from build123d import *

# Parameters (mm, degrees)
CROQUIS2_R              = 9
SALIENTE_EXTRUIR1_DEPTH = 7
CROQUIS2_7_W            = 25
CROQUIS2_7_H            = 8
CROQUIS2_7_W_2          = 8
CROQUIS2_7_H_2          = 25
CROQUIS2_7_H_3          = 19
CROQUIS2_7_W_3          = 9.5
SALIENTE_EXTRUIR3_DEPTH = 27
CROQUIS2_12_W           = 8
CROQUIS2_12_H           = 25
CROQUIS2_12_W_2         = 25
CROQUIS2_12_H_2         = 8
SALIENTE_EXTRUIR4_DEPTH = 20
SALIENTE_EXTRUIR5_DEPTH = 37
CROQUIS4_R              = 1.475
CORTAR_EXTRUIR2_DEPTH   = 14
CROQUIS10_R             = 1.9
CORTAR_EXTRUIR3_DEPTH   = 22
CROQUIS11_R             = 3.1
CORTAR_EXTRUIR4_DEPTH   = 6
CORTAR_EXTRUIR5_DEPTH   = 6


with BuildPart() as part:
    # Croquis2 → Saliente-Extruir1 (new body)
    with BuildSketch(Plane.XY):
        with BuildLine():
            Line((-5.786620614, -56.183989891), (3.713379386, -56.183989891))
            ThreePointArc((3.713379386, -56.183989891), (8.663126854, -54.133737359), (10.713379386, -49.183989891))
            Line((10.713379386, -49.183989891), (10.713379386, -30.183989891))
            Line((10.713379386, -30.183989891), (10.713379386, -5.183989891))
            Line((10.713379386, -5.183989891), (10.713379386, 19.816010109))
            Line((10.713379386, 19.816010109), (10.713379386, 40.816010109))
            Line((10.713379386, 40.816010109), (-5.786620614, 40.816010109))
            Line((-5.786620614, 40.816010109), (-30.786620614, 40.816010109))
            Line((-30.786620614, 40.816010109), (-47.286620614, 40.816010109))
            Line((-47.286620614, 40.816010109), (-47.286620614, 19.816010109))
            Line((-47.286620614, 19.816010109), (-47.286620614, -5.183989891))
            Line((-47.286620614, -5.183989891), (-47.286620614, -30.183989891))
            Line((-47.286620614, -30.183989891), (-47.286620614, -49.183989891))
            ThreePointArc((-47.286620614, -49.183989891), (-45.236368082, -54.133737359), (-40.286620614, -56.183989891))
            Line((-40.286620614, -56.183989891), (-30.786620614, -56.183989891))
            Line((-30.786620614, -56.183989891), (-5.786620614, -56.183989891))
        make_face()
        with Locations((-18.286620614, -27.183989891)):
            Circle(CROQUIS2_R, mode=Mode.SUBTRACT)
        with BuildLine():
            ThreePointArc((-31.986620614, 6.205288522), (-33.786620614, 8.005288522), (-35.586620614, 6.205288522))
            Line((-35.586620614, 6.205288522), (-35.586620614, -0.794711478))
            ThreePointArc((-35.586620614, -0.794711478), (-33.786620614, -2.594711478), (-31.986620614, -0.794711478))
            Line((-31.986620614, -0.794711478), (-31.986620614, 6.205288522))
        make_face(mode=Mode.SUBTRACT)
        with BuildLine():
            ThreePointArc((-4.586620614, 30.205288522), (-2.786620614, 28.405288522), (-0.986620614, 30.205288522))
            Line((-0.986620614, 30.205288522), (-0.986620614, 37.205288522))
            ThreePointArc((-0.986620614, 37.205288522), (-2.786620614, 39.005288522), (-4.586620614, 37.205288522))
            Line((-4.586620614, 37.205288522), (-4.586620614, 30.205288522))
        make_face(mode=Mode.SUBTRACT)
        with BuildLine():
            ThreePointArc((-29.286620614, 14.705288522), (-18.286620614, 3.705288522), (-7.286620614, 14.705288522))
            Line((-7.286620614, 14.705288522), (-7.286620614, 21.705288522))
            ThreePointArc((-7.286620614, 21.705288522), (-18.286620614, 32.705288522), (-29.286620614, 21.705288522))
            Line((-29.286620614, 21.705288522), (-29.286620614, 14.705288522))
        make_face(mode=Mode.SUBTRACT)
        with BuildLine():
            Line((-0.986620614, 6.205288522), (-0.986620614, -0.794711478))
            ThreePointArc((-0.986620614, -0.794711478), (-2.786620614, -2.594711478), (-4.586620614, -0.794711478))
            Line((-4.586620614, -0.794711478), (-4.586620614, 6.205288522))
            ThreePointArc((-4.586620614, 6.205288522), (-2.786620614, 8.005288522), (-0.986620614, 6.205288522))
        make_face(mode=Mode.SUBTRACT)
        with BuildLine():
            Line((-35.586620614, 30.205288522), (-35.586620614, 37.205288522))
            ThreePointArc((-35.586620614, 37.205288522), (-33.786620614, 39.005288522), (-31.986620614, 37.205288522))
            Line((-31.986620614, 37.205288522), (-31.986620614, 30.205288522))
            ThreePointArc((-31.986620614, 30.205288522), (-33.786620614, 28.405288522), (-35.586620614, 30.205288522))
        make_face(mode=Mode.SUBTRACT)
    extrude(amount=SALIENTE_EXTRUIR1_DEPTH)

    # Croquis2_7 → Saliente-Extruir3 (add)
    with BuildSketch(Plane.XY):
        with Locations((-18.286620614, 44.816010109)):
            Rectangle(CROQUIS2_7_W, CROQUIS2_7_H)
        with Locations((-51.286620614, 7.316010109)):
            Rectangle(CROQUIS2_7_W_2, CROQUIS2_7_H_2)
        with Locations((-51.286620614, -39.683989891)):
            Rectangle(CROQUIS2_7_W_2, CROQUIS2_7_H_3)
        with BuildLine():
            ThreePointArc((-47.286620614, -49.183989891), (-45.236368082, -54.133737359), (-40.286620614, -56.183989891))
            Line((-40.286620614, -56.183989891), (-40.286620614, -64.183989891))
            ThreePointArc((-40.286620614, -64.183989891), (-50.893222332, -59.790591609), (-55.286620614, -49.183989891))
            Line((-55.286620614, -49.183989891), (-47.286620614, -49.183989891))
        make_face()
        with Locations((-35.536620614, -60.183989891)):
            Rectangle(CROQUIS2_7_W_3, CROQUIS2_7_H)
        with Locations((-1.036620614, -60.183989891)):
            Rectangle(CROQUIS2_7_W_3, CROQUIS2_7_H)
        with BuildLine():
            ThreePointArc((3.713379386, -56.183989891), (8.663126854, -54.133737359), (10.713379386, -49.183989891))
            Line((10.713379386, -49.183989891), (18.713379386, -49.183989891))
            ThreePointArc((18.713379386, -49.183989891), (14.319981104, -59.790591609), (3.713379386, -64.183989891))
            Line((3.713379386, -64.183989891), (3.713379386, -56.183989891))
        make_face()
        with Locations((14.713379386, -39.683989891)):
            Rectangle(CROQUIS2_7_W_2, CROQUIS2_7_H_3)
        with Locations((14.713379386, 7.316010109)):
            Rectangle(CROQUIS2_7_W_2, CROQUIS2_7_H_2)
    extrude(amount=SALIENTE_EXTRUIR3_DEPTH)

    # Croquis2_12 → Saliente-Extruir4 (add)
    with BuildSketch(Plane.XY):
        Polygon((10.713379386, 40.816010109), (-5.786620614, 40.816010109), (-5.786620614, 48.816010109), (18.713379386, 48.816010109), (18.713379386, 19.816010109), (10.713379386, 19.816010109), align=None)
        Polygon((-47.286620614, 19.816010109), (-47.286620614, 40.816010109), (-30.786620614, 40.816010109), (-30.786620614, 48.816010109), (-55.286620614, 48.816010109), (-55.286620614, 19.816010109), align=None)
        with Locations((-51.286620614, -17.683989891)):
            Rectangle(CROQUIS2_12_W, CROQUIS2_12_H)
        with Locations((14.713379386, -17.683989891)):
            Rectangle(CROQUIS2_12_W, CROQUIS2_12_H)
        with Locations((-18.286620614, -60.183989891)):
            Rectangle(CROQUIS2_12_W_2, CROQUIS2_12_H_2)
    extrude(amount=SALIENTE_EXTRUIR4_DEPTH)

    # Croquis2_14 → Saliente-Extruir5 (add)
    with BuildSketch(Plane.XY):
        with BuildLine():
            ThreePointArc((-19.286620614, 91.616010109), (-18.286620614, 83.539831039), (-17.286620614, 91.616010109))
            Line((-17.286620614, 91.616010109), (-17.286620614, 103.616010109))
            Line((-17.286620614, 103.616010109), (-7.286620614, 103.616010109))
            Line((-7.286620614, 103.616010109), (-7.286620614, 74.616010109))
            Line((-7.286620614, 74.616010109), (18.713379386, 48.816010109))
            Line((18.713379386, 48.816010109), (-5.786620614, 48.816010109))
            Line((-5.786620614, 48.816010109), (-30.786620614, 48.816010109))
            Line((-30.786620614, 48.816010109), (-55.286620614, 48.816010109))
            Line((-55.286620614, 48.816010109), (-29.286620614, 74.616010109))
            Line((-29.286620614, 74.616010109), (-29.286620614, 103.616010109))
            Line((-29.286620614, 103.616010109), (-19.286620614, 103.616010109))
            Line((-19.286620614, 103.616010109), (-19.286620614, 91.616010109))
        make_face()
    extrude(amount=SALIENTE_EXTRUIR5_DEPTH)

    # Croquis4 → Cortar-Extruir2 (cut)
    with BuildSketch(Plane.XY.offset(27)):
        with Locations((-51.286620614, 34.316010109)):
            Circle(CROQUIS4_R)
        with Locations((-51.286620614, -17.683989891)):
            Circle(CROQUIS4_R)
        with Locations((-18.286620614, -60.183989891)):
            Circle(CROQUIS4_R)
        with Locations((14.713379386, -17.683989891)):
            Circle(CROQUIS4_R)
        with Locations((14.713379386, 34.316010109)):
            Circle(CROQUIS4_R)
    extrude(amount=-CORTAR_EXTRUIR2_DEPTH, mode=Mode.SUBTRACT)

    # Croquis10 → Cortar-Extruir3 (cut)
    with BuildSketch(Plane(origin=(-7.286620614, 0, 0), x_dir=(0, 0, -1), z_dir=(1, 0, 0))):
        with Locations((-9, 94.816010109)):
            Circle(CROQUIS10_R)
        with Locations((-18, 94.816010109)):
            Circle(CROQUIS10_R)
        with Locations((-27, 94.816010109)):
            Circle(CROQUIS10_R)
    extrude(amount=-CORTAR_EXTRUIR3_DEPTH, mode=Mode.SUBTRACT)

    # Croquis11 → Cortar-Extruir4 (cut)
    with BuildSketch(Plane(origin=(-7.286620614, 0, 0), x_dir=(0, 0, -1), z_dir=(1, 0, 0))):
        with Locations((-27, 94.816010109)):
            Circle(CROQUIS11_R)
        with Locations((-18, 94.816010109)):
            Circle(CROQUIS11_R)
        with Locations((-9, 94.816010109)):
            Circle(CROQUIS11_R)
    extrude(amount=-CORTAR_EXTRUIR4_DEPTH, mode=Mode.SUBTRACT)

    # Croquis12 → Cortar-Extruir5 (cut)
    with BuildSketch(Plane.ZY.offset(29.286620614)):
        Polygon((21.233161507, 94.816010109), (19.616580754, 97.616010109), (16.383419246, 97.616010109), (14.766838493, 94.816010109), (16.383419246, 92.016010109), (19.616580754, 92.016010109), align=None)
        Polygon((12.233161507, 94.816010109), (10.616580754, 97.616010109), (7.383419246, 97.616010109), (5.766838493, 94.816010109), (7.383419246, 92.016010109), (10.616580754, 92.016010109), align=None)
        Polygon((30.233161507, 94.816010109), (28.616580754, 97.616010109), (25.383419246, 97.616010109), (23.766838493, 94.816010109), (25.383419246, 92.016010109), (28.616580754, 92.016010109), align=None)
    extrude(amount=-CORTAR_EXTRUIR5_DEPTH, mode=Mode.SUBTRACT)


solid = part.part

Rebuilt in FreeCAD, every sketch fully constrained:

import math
import FreeCAD as App
import Part
import Sketcher

V = App.Vector
Q = App.Units.Quantity

doc = App.newDocument("Part")
body = doc.addObject("PartDesign::Body", "Body")

# Sketch on XY plane
sketch1 = body.newObject("Sketcher::SketchObject", "Sketch")
sketch1.AttachmentSupport = (doc.getObject("XY_Plane"), [""])
sketch1.MapMode = "FlatFace"
sketch1.addGeometry([
    Part.ArcOfCircle(Part.Circle(V(3.7, -49.2, 0), V(0, 0, 1), 7), math.radians(-90), math.radians(0)),  # 0
    Part.LineSegment(V(10.7, -49.2, 0), V(10.7, 40.8, 0)),  # 1
    Part.LineSegment(V(10.7, 40.8, 0), V(-47.3, 40.8, 0)),  # 2
    Part.LineSegment(V(-47.3, 40.8, 0), V(-47.3, -49.2, 0)),  # 3
    Part.ArcOfCircle(Part.Circle(V(-40.3, -49.2, 0), V(0, 0, 1), 7), math.radians(-180), math.radians(-90)),  # 4
    Part.LineSegment(V(-40.3, -56.2, 0), V(3.7, -56.2, 0)),  # 5
    Part.Circle(V(-18.3, -27.2, 0), V(0, 0, 1), 9),  # 6
    Part.ArcOfCircle(Part.Circle(V(-33.8, 6.2, 0), V(0, 0, 1), 1.8), math.radians(0), math.radians(180)),  # 7
    Part.LineSegment(V(-32, 6.2, 0), V(-32, -0.8, 0)),  # 8
    Part.ArcOfCircle(Part.Circle(V(-33.8, -0.8, 0), V(0, 0, 1), 1.8), math.radians(180), math.radians(360)),  # 9
    Part.LineSegment(V(-35.6, -0.8, 0), V(-35.6, 6.2, 0)),  # 10
    Part.ArcOfCircle(Part.Circle(V(-33.8, 30.2, 0), V(0, 0, 1), 1.8), math.radians(180), math.radians(360)),  # 11
    Part.LineSegment(V(-35.6, 30.2, 0), V(-35.6, 37.2, 0)),  # 12
    Part.ArcOfCircle(Part.Circle(V(-33.8, 37.2, 0), V(0, 0, 1), 1.8), math.radians(0), math.radians(180)),  # 13
    Part.LineSegment(V(-32, 37.2, 0), V(-32, 30.2, 0)),  # 14
    Part.ArcOfCircle(Part.Circle(V(-18.3, 14.7, 0), V(0, 0, 1), 11), math.radians(180), math.radians(360)),  # 15
    Part.LineSegment(V(-29.3, 14.7, 0), V(-29.3, 21.7, 0)),  # 16
    Part.ArcOfCircle(Part.Circle(V(-18.3, 21.7, 0), V(0, 0, 1), 11), math.radians(0), math.radians(180)),  # 17
    Part.LineSegment(V(-7.3, 21.7, 0), V(-7.3, 14.7, 0)),  # 18
    Part.ArcOfCircle(Part.Circle(V(-2.8, 6.2, 0), V(0, 0, 1), 1.8), math.radians(0), math.radians(180)),  # 19
    Part.LineSegment(V(-1, 6.2, 0), V(-1, -0.8, 0)),  # 20
    Part.ArcOfCircle(Part.Circle(V(-2.8, -0.8, 0), V(0, 0, 1), 1.8), math.radians(180), math.radians(360)),  # 21
    Part.LineSegment(V(-4.6, -0.8, 0), V(-4.6, 6.2, 0)),  # 22
    Part.ArcOfCircle(Part.Circle(V(-2.8, 30.2, 0), V(0, 0, 1), 1.8), math.radians(180), math.radians(360)),  # 23
    Part.LineSegment(V(-4.6, 30.2, 0), V(-4.6, 37.2, 0)),  # 24
    Part.ArcOfCircle(Part.Circle(V(-2.8, 37.2, 0), V(0, 0, 1), 1.8), math.radians(0), math.radians(180)),  # 25
    Part.LineSegment(V(-1, 37.2, 0), V(-1, 30.2, 0)),  # 26
], False)
sketch1.addConstraint([
    Sketcher.Constraint("Tangent", 0, 2, 1, 1),
    Sketcher.Constraint("Coincident", 1, 2, 2, 1),
    Sketcher.Constraint("Coincident", 2, 2, 3, 1),
    Sketcher.Constraint("Tangent", 3, 2, 4, 1),
    Sketcher.Constraint("Tangent", 4, 2, 5, 1),
    Sketcher.Constraint("Tangent", 5, 2, 0, 1),
    Sketcher.Constraint("Tangent", 7, 1, 8, 1),
    Sketcher.Constraint("Tangent", 8, 2, 9, 2),
    Sketcher.Constraint("Tangent", 9, 1, 10, 1),
    Sketcher.Constraint("Tangent", 10, 2, 7, 2),
    Sketcher.Constraint("Tangent", 11, 1, 12, 1),
    Sketcher.Constraint("Tangent", 12, 2, 13, 2),
    Sketcher.Constraint("Tangent", 13, 1, 14, 1),
    Sketcher.Constraint("Tangent", 14, 2, 11, 2),
    Sketcher.Constraint("Tangent", 15, 1, 16, 1),
    Sketcher.Constraint("Tangent", 16, 2, 17, 2),
    Sketcher.Constraint("Tangent", 17, 1, 18, 1),
    Sketcher.Constraint("Tangent", 18, 2, 15, 2),
    Sketcher.Constraint("Tangent", 19, 1, 20, 1),
    Sketcher.Constraint("Tangent", 20, 2, 21, 2),
    Sketcher.Constraint("Tangent", 21, 1, 22, 1),
    Sketcher.Constraint("Tangent", 22, 2, 19, 2),
    Sketcher.Constraint("Tangent", 23, 1, 24, 1),
    Sketcher.Constraint("Tangent", 24, 2, 25, 2),
    Sketcher.Constraint("Tangent", 25, 1, 26, 1),
    Sketcher.Constraint("Tangent", 26, 2, 23, 2),
    Sketcher.Constraint("Vertical", 1),
    Sketcher.Constraint("Horizontal", 2),
    Sketcher.Constraint("Vertical", 3),
    Sketcher.Constraint("Horizontal", 5),
    Sketcher.Constraint("Vertical", 8),
    Sketcher.Constraint("Vertical", 10),
    Sketcher.Constraint("Vertical", 12),
    Sketcher.Constraint("Vertical", 14),
    Sketcher.Constraint("Vertical", 16),
    Sketcher.Constraint("Vertical", 18),
    Sketcher.Constraint("Vertical", 20),
    Sketcher.Constraint("Vertical", 22),
    Sketcher.Constraint("Vertical", 24),
    Sketcher.Constraint("Vertical", 26),
    Sketcher.Constraint("Equal", 0, 4),
    Sketcher.Constraint("Equal", 9, 11),
    Sketcher.Constraint("Equal", 13, 19),
    Sketcher.Constraint("Equal", 21, 23),
    Sketcher.Constraint("Horizontal", 7, 3, 19, 3),
    Sketcher.Constraint("Horizontal", 9, 3, 21, 3),
    Sketcher.Constraint("Horizontal", 11, 3, 23, 3),
    Sketcher.Constraint("Horizontal", 13, 3, 25, 3),
    Sketcher.Constraint("Vertical", 9, 3, 11, 3),
    Sketcher.Constraint("Vertical", 6, 3, 15, 3),
    Sketcher.Constraint("Vertical", 21, 3, 23, 3),
    Sketcher.Constraint("Equal", 10, 12),
    Sketcher.Constraint("Equal", 14, 16),
    Sketcher.Constraint("Diameter", 6, Q("18 mm")),
    Sketcher.Constraint("Radius", 0, Q("7 mm")),
    Sketcher.Constraint("Radius", 15, Q("11 mm")),
    Sketcher.Constraint("Radius", 7, Q("1.8 mm")),
    Sketcher.Constraint("DistanceX", 2, 2, 2, 1, Q("58 mm")),
    Sketcher.Constraint("DistanceY", 1, 1, 1, 2, Q("90 mm")),
    Sketcher.Constraint("DistanceY", 8, 2, 8, 1, Q("7 mm")),
    Sketcher.Constraint("DistanceX", 6, 3, 0, 3, Q("22 mm")),
    Sketcher.Constraint("DistanceY", 0, 3, 6, 3, Q("22 mm")),
    Sketcher.Constraint("DistanceY", 7, 3, 11, 3, Q("24 mm")),
    Sketcher.Constraint("DistanceX", 7, 3, 19, 3, Q("31 mm")),
    Sketcher.Constraint("DistanceX", 7, 3, 6, 3, Q("15.5 mm")),
    Sketcher.Constraint("DistanceY", 7, 3, 15, 3, Q("8.5 mm")),
    Sketcher.Constraint("DistanceX", -1, 1, 0, 3, Q("3.713379 mm")),
    Sketcher.Constraint("DistanceY", 0, 3, -1, 1, Q("49.18399 mm")),
    Sketcher.Constraint("DistanceY", -1, 1, 7, 3, Q("6.205289 mm")),
])
pad1 = body.newObject("PartDesign::Pad", "Pad")
pad1.Profile = sketch1
pad1.Length = 7

# Sketch on XY plane
sketch2 = body.newObject("Sketcher::SketchObject", "Sketch001")
sketch2.AttachmentSupport = (doc.getObject("XY_Plane"), [""])
sketch2.MapMode = "FlatFace"
sketch2.addGeometry([
    Part.LineSegment(V(-31, 49, 0), V(-31, 41, 0)),  # 0
    Part.LineSegment(V(-31, 41, 0), V(-6, 41, 0)),  # 1
    Part.LineSegment(V(-6, 41, 0), V(-6, 49, 0)),  # 2
    Part.LineSegment(V(-6, 49, 0), V(-31, 49, 0)),  # 3
    Part.LineSegment(V(-55, 20, 0), V(-55, -5, 0)),  # 4
    Part.LineSegment(V(-55, -5, 0), V(-47, -5, 0)),  # 5
    Part.LineSegment(V(-47, -5, 0), V(-47, 20, 0)),  # 6
    Part.LineSegment(V(-47, 20, 0), V(-55, 20, 0)),  # 7
    Part.LineSegment(V(-55, -30, 0), V(-55, -49, 0)),  # 8
    Part.ArcOfCircle(Part.Circle(V(-40, -49, 0), V(0, 0, 1), 15), math.radians(180), math.radians(270)),  # 9
    Part.LineSegment(V(-40, -64, 0), V(-31, -64, 0)),  # 10
    Part.LineSegment(V(-31, -64, 0), V(-31, -56, 0)),  # 11
    Part.LineSegment(V(-31, -56, 0), V(-40, -56, 0)),  # 12
    Part.ArcOfCircle(Part.Circle(V(-40, -49, 0), V(0, 0, 1), 7), math.radians(-180), math.radians(-90)),  # 13
    Part.LineSegment(V(-47, -49, 0), V(-47, -30, 0)),  # 14
    Part.LineSegment(V(-47, -30, 0), V(-55, -30, 0)),  # 15
    Part.LineSegment(V(-6, -56, 0), V(-6, -64, 0)),  # 16
    Part.LineSegment(V(-6, -64, 0), V(4, -64, 0)),  # 17
    Part.ArcOfCircle(Part.Circle(V(4, -49, 0), V(0, 0, 1), 15), math.radians(-90), math.radians(0)),  # 18
    Part.LineSegment(V(19, -49, 0), V(19, -30, 0)),  # 19
    Part.LineSegment(V(19, -30, 0), V(11, -30, 0)),  # 20
    Part.LineSegment(V(11, -30, 0), V(11, -49, 0)),  # 21
    Part.ArcOfCircle(Part.Circle(V(4, -49, 0), V(0, 0, 1), 7), math.radians(-90), math.radians(0)),  # 22
    Part.LineSegment(V(4, -56, 0), V(-6, -56, 0)),  # 23
    Part.LineSegment(V(11, 20, 0), V(11, -5, 0)),  # 24
    Part.LineSegment(V(11, -5, 0), V(19, -5, 0)),  # 25
    Part.LineSegment(V(19, -5, 0), V(19, 20, 0)),  # 26
    Part.LineSegment(V(19, 20, 0), V(11, 20, 0)),  # 27
], False)
sketch2.addConstraint([
    Sketcher.Constraint("Coincident", 0, 2, 1, 1),
    Sketcher.Constraint("Coincident", 1, 2, 2, 1),
    Sketcher.Constraint("Coincident", 2, 2, 3, 1),
    Sketcher.Constraint("Coincident", 3, 2, 0, 1),
    Sketcher.Constraint("Coincident", 4, 2, 5, 1),
    Sketcher.Constraint("Coincident", 5, 2, 6, 1),
    Sketcher.Constraint("Coincident", 6, 2, 7, 1),
    Sketcher.Constraint("Coincident", 7, 2, 4, 1),
    Sketcher.Constraint("Tangent", 8, 2, 9, 1),
    Sketcher.Constraint("Tangent", 9, 2, 10, 1),
    Sketcher.Constraint("Coincident", 10, 2, 11, 1),
    Sketcher.Constraint("Coincident", 11, 2, 12, 1),
    Sketcher.Constraint("Tangent", 12, 2, 13, 2),
    Sketcher.Constraint("Tangent", 13, 1, 14, 1),
    Sketcher.Constraint("Coincident", 14, 2, 15, 1),
    Sketcher.Constraint("Coincident", 15, 2, 8, 1),
    Sketcher.Constraint("Coincident", 16, 2, 17, 1),
    Sketcher.Constraint("Tangent", 17, 2, 18, 1),
    Sketcher.Constraint("Tangent", 18, 2, 19, 1),
    Sketcher.Constraint("Coincident", 19, 2, 20, 1),
    Sketcher.Constraint("Coincident", 20, 2, 21, 1),
    Sketcher.Constraint("Tangent", 21, 2, 22, 2),
    Sketcher.Constraint("Tangent", 22, 1, 23, 1),
    Sketcher.Constraint("Coincident", 23, 2, 16, 1),
    Sketcher.Constraint("Coincident", 24, 2, 25, 1),
    Sketcher.Constraint("Coincident", 25, 2, 26, 1),
    Sketcher.Constraint("Coincident", 26, 2, 27, 1),
    Sketcher.Constraint("Coincident", 27, 2, 24, 1),
    Sketcher.Constraint("Vertical", 0),
    Sketcher.Constraint("Horizontal", 1),
    Sketcher.Constraint("Vertical", 2),
    Sketcher.Constraint("Horizontal", 3),
    Sketcher.Constraint("Vertical", 4),
    Sketcher.Constraint("Horizontal", 5),
    Sketcher.Constraint("Vertical", 6),
    Sketcher.Constraint("Horizontal", 7),
    Sketcher.Constraint("Vertical", 8),
    Sketcher.Constraint("Horizontal", 10),
    Sketcher.Constraint("Vertical", 11),
    Sketcher.Constraint("Horizontal", 12),
    Sketcher.Constraint("Vertical", 14),
    Sketcher.Constraint("Horizontal", 15),
    Sketcher.Constraint("Vertical", 16),
    Sketcher.Constraint("Horizontal", 17),
    Sketcher.Constraint("Vertical", 19),
    Sketcher.Constraint("Horizontal", 20),
    Sketcher.Constraint("Vertical", 21),
    Sketcher.Constraint("Horizontal", 23),
    Sketcher.Constraint("Vertical", 24),
    Sketcher.Constraint("Horizontal", 25),
    Sketcher.Constraint("Vertical", 26),
    Sketcher.Constraint("Horizontal", 27),
    Sketcher.Constraint("Coincident", 13, 3, 9, 3),
    Sketcher.Constraint("Coincident", 22, 3, 18, 3),
    Sketcher.Constraint("Equal", 9, 18),
    Sketcher.Constraint("Equal", 13, 22),
    Sketcher.Constraint("Horizontal", 13, 3, 18, 3),
    Sketcher.Constraint("Horizontal", 15, 2, 19, 2),
    Sketcher.Constraint("Horizontal", 5, 2, 24, 2),
    Sketcher.Constraint("Horizontal", 7, 2, 26, 2),
    Sketcher.Constraint("Vertical", 7, 2, 8, 2),
    Sketcher.Constraint("Vertical", 3, 2, 10, 2),
    Sketcher.Constraint("Vertical", 6, 2, 13, 1),
    Sketcher.Constraint("Vertical", 2, 2, 16, 2),
    Sketcher.Constraint("Vertical", 21, 2, 24, 2),
    Sketcher.Constraint("Vertical", 19, 2, 25, 2),
    Sketcher.Constraint("Equal", 12, 17),
    Sketcher.Constraint("Equal", 27, 0),
    Sketcher.Constraint("Equal", 3, 4),
    Sketcher.Constraint("Radius", 9, Q("15 mm")),
    Sketcher.Constraint("Radius", 13, Q("7 mm")),
    Sketcher.Constraint("DistanceX", 1, 1, 1, 2, Q("25 mm")),
    Sketcher.Constraint("DistanceY", 8, 2, 8, 1, Q("19 mm")),
    Sketcher.Constraint("DistanceX", 10, 1, 10, 2, Q("9.5 mm")),
    Sketcher.Constraint("DistanceY", 13, 3, 0, 2, Q("90 mm")),
    Sketcher.Constraint("DistanceY", 13, 3, 4, 2, Q("44 mm")),
    Sketcher.Constraint("DistanceX", 9, 3, -1, 1, Q("40.286621 mm")),
    Sketcher.Constraint("DistanceY", 9, 3, -1, 1, Q("49.18399 mm")),
])
pad2 = body.newObject("PartDesign::Pad", "Pad001")
pad2.Profile = sketch2
pad2.Length = 27

# Sketch on XY plane
sketch3 = body.newObject("Sketcher::SketchObject", "Sketch002")
sketch3.AttachmentSupport = (doc.getObject("XY_Plane"), [""])
sketch3.MapMode = "FlatFace"
sketch3.addGeometry([
    Part.LineSegment(V(-6, 41, 0), V(11, 41, 0)),  # 0
    Part.LineSegment(V(11, 41, 0), V(11, 20, 0)),  # 1
    Part.LineSegment(V(11, 20, 0), V(19, 20, 0)),  # 2
    Part.LineSegment(V(19, 20, 0), V(19, 49, 0)),  # 3
    Part.LineSegment(V(19, 49, 0), V(-6, 49, 0)),  # 4
    Part.LineSegment(V(-6, 49, 0), V(-6, 41, 0)),  # 5
    Part.LineSegment(V(-47, 20, 0), V(-47, 41, 0)),  # 6
    Part.LineSegment(V(-47, 41, 0), V(-31, 41, 0)),  # 7
    Part.LineSegment(V(-31, 41, 0), V(-31, 49, 0)),  # 8
    Part.LineSegment(V(-31, 49, 0), V(-55, 49, 0)),  # 9
    Part.LineSegment(V(-55, 49, 0), V(-55, 20, 0)),  # 10
    Part.LineSegment(V(-55, 20, 0), V(-47, 20, 0)),  # 11
    Part.LineSegment(V(-55, -5, 0), V(-55, -30, 0)),  # 12
    Part.LineSegment(V(-55, -30, 0), V(-47, -30, 0)),  # 13
    Part.LineSegment(V(-47, -30, 0), V(-47, -5, 0)),  # 14
    Part.LineSegment(V(-47, -5, 0), V(-55, -5, 0)),  # 15
    Part.LineSegment(V(11, -5, 0), V(11, -30, 0)),  # 16
    Part.LineSegment(V(11, -30, 0), V(19, -30, 0)),  # 17
    Part.LineSegment(V(19, -30, 0), V(19, -5, 0)),  # 18
    Part.LineSegment(V(19, -5, 0), V(11, -5, 0)),  # 19
    Part.LineSegment(V(-31, -56, 0), V(-31, -64, 0)),  # 20
    Part.LineSegment(V(-31, -64, 0), V(-6, -64, 0)),  # 21
    Part.LineSegment(V(-6, -64, 0), V(-6, -56, 0)),  # 22
    Part.LineSegment(V(-6, -56, 0), V(-31, -56, 0)),  # 23
], False)
sketch3.addConstraint([
    Sketcher.Constraint("Coincident", 0, 2, 1, 1),
    Sketcher.Constraint("Coincident", 1, 2, 2, 1),
    Sketcher.Constraint("Coincident", 2, 2, 3, 1),
    Sketcher.Constraint("Coincident", 3, 2, 4, 1),
    Sketcher.Constraint("Coincident", 4, 2, 5, 1),
    Sketcher.Constraint("Coincident", 5, 2, 0, 1),
    Sketcher.Constraint("Coincident", 6, 2, 7, 1),
    Sketcher.Constraint("Coincident", 7, 2, 8, 1),
    Sketcher.Constraint("Coincident", 8, 2, 9, 1),
    Sketcher.Constraint("Coincident", 9, 2, 10, 1),
    Sketcher.Constraint("Coincident", 10, 2, 11, 1),
    Sketcher.Constraint("Coincident", 11, 2, 6, 1),
    Sketcher.Constraint("Coincident", 12, 2, 13, 1),
    Sketcher.Constraint("Coincident", 13, 2, 14, 1),
    Sketcher.Constraint("Coincident", 14, 2, 15, 1),
    Sketcher.Constraint("Coincident", 15, 2, 12, 1),
    Sketcher.Constraint("Coincident", 16, 2, 17, 1),
    Sketcher.Constraint("Coincident", 17, 2, 18, 1),
    Sketcher.Constraint("Coincident", 18, 2, 19, 1),
    Sketcher.Constraint("Coincident", 19, 2, 16, 1),
    Sketcher.Constraint("Coincident", 20, 2, 21, 1),
    Sketcher.Constraint("Coincident", 21, 2, 22, 1),
    Sketcher.Constraint("Coincident", 22, 2, 23, 1),
    Sketcher.Constraint("Coincident", 23, 2, 20, 1),
    Sketcher.Constraint("Horizontal", 0),
    Sketcher.Constraint("Vertical", 1),
    Sketcher.Constraint("Horizontal", 2),
    Sketcher.Constraint("Vertical", 3),
    Sketcher.Constraint("Horizontal", 4),
    Sketcher.Constraint("Vertical", 5),
    Sketcher.Constraint("Vertical", 6),
    Sketcher.Constraint("Horizontal", 7),
    Sketcher.Constraint("Vertical", 8),
    Sketcher.Constraint("Horizontal", 9),
    Sketcher.Constraint("Vertical", 10),
    Sketcher.Constraint("Horizontal", 11),
    Sketcher.Constraint("Vertical", 12),
    Sketcher.Constraint("Horizontal", 13),
    Sketcher.Constraint("Vertical", 14),
    Sketcher.Constraint("Horizontal", 15),
    Sketcher.Constraint("Vertical", 16),
    Sketcher.Constraint("Horizontal", 17),
    Sketcher.Constraint("Vertical", 18),
    Sketcher.Constraint("Horizontal", 19),
    Sketcher.Constraint("Vertical", 20),
    Sketcher.Constraint("Horizontal", 21),
    Sketcher.Constraint("Vertical", 22),
    Sketcher.Constraint("Horizontal", 23),
    Sketcher.Constraint("Horizontal", 5, 2, 6, 2),
    Sketcher.Constraint("Horizontal", 4, 2, 8, 2),
    Sketcher.Constraint("Horizontal", 2, 2, 10, 2),
    Sketcher.Constraint("Horizontal", 13, 2, 16, 2),
    Sketcher.Constraint("Horizontal", 15, 2, 18, 2),
    Sketcher.Constraint("Vertical", 10, 2, 12, 2),
    Sketcher.Constraint("Vertical", 11, 2, 13, 2),
    Sketcher.Constraint("Vertical", 1, 2, 16, 2),
    Sketcher.Constraint("Vertical", 3, 2, 17, 2),
    Sketcher.Constraint("Vertical", 8, 2, 20, 2),
    Sketcher.Constraint("Vertical", 5, 2, 21, 2),
    Sketcher.Constraint("Equal", 0, 7),
    Sketcher.Constraint("Equal", 4, 9),
    Sketcher.Constraint("Equal", 19, 5),
    Sketcher.Constraint("Equal", 23, 12),
    Sketcher.Constraint("Equal", 8, 20),
    Sketcher.Constraint("DistanceX", 2, 1, 2, 2, Q("8 mm")),
    Sketcher.Constraint("DistanceX", 21, 1, 21, 2, Q("25 mm")),
    Sketcher.Constraint("DistanceY", 1, 2, 1, 1, Q("21 mm")),
    Sketcher.Constraint("DistanceX", 0, 1, 0, 2, Q("16.5 mm")),
    Sketcher.Constraint("DistanceY", 12, 2, 10, 2, Q("50 mm")),
    Sketcher.Constraint("DistanceY", 20, 2, 13, 2, Q("34 mm")),
    Sketcher.Constraint("DistanceX", -1, 1, 0, 2, Q("10.713379 mm")),
    Sketcher.Constraint("DistanceY", -1, 1, 0, 2, Q("40.81601 mm")),
])
pad3 = body.newObject("PartDesign::Pad", "Pad002")
pad3.Profile = sketch3
pad3.Length = 20

# Sketch on XY plane
sketch4 = body.newObject("Sketcher::SketchObject", "Sketch003")
sketch4.AttachmentSupport = (doc.getObject("XY_Plane"), [""])
sketch4.MapMode = "FlatFace"
sketch4.addGeometry([
    Part.ArcOfCircle(Part.Circle(V(-18.3, 87.6, 0), V(0, 0, 1), 4.1), math.radians(104), math.radians(436)),  # 0
    Part.LineSegment(V(-19.3, 91.6, 0), V(-19.3, 103.6, 0)),  # 1
    Part.LineSegment(V(-19.3, 103.6, 0), V(-29.3, 103.6, 0)),  # 2
    Part.LineSegment(V(-29.3, 103.6, 0), V(-29.3, 74.6, 0)),  # 3
    Part.LineSegment(V(-29.3, 74.6, 0), V(-55.3, 48.8, 0)),  # 4
    Part.LineSegment(V(-55.3, 48.8, 0), V(18.7, 48.8, 0)),  # 5
    Part.LineSegment(V(18.7, 48.8, 0), V(-7.3, 74.6, 0)),  # 6
    Part.LineSegment(V(-7.3, 74.6, 0), V(-7.3, 103.6, 0)),  # 7
    Part.LineSegment(V(-7.3, 103.6, 0), V(-17.3, 103.6, 0)),  # 8
    Part.LineSegment(V(-17.3, 103.6, 0), V(-17.3, 91.6, 0)),  # 9
], False)
sketch4.addConstraint([
    Sketcher.Constraint("Coincident", 0, 1, 1, 1),
    Sketcher.Constraint("Coincident", 1, 2, 2, 1),
    Sketcher.Constraint("Coincident", 2, 2, 3, 1),
    Sketcher.Constraint("Coincident", 3, 2, 4, 1),
    Sketcher.Constraint("Coincident", 4, 2, 5, 1),
    Sketcher.Constraint("Coincident", 5, 2, 6, 1),
    Sketcher.Constraint("Coincident", 6, 2, 7, 1),
    Sketcher.Constraint("Coincident", 7, 2, 8, 1),
    Sketcher.Constraint("Coincident", 8, 2, 9, 1),
    Sketcher.Constraint("Coincident", 9, 2, 0, 2),
    Sketcher.Constraint("Vertical", 1),
    Sketcher.Constraint("Horizontal", 2),
    Sketcher.Constraint("Vertical", 3),
    Sketcher.Constraint("Horizontal", 5),
    Sketcher.Constraint("Vertical", 7),
    Sketcher.Constraint("Horizontal", 8),
    Sketcher.Constraint("Vertical", 9),
    Sketcher.Constraint("Horizontal", 3, 2, 6, 2),
    Sketcher.Constraint("Horizontal", 2, 2, 7, 2),
    Sketcher.Constraint("Horizontal", 0, 1, 9, 2),
    Sketcher.Constraint("Equal", 2, 8),
    Sketcher.Constraint("Equal", 4, 6),
    Sketcher.Constraint("Radius", 0, Q("4.1 mm")),
    Sketcher.Constraint("DistanceX", 2, 2, 2, 1, Q("10 mm")),
    Sketcher.Constraint("DistanceX", 5, 1, 5, 2, Q("74 mm")),
    Sketcher.Constraint("DistanceY", 1, 1, 1, 2, Q("12 mm")),
    Sketcher.Constraint("DistanceY", 3, 2, 3, 1, Q("29 mm")),
    Sketcher.Constraint("DistanceX", 0, 1, 0, 3, Q("1 mm")),
    Sketcher.Constraint("DistanceY", 4, 2, 3, 2, Q("25.8 mm")),
    Sketcher.Constraint("DistanceX", 0, 3, -1, 1, Q("18.286621 mm")),
    Sketcher.Constraint("DistanceY", -1, 1, 0, 3, Q("87.639831 mm")),
])
pad4 = body.newObject("PartDesign::Pad", "Pad003")
pad4.Profile = sketch4
pad4.Length = 37

# Sketch on XY plane
sketch5 = body.newObject("Sketcher::SketchObject", "Sketch004")
sketch5.AttachmentSupport = (doc.getObject("XY_Plane"), [""])
sketch5.MapMode = "FlatFace"
sketch5.AttachmentOffset = App.Placement(V(0, 0, 27), App.Rotation())
sketch5.addGeometry([
    Part.Circle(V(-51.3, 34.3, 0), V(0, 0, 1), 1.5),  # 0
    Part.Circle(V(-51.3, -17.7, 0), V(0, 0, 1), 1.5),  # 1
    Part.Circle(V(-18.3, -60.2, 0), V(0, 0, 1), 1.5),  # 2
    Part.Circle(V(14.7, -17.7, 0), V(0, 0, 1), 1.5),  # 3
    Part.Circle(V(14.7, 34.3, 0), V(0, 0, 1), 1.5),  # 4
], False)
sketch5.addConstraint([
    Sketcher.Constraint("Equal", 0, 1),
    Sketcher.Constraint("Equal", 1, 2),
    Sketcher.Constraint("Equal", 2, 3),
    Sketcher.Constraint("Equal", 3, 4),
    Sketcher.Constraint("Horizontal", 1, 3, 3, 3),
    Sketcher.Constraint("Horizontal", 0, 3, 4, 3),
    Sketcher.Constraint("Vertical", 0, 3, 1, 3),
    Sketcher.Constraint("Vertical", 3, 3, 4, 3),
    Sketcher.Constraint("Diameter", 0, Q("2.95 mm")),
    Sketcher.Constraint("DistanceY", 1, 3, 0, 3, Q("52 mm")),
    Sketcher.Constraint("DistanceX", 1, 3, 2, 3, Q("33 mm")),
    Sketcher.Constraint("DistanceX", 2, 3, 3, 3, Q("33 mm")),
    Sketcher.Constraint("DistanceY", 2, 3, 1, 3, Q("42.5 mm")),
    Sketcher.Constraint("DistanceX", 0, 3, -1, 1, Q("51.286621 mm")),
    Sketcher.Constraint("DistanceY", -1, 1, 0, 3, Q("34.31601 mm")),
])
pocket1 = body.newObject("PartDesign::Pocket", "Pocket")
pocket1.Profile = sketch5
pocket1.Length = 14

# Sketch on YZ plane
sketch6 = body.newObject("Sketcher::SketchObject", "Sketch005")
sketch6.AttachmentSupport = (doc.getObject("YZ_Plane"), [""])
sketch6.MapMode = "FlatFace"
sketch6.AttachmentOffset = App.Placement(V(0, 0, -7.286621), App.Rotation())
sketch6.addGeometry([
    Part.Circle(V(94.8, 9, 0), V(0, 0, 1), 1.9),
    Part.Circle(V(94.8, 18, 0), V(0, 0, 1), 1.9),
    Part.Circle(V(94.8, 27, 0), V(0, 0, 1), 1.9),
], False)
sketch6.addConstraint([
    Sketcher.Constraint("Equal", 0, 1),
    Sketcher.Constraint("Equal", 1, 2),
    Sketcher.Constraint("Vertical", 0, 3, 1, 3),
    Sketcher.Constraint("Vertical", 1, 3, 2, 3),
    Sketcher.Constraint("Diameter", 0, Q("3.8 mm")),
    Sketcher.Constraint("DistanceY", -1, 1, 0, 3, Q("9 mm")),
    Sketcher.Constraint("DistanceY", -1, 1, 1, 3, Q("18 mm")),
    Sketcher.Constraint("DistanceY", -1, 1, 2, 3, Q("27 mm")),
    Sketcher.Constraint("DistanceX", -1, 1, 0, 3, Q("94.81601 mm")),
])
pocket2 = body.newObject("PartDesign::Pocket", "Pocket001")
pocket2.Profile = sketch6
pocket2.Length = 22

# Sketch on YZ plane
sketch7 = body.newObject("Sketcher::SketchObject", "Sketch006")
sketch7.AttachmentSupport = (doc.getObject("YZ_Plane"), [""])
sketch7.MapMode = "FlatFace"
sketch7.AttachmentOffset = App.Placement(V(0, 0, -7.286621), App.Rotation())
sketch7.addGeometry([
    Part.Circle(V(94.8, 27, 0), V(0, 0, 1), 3.1),
    Part.Circle(V(94.8, 18, 0), V(0, 0, 1), 3.1),
    Part.Circle(V(94.8, 9, 0), V(0, 0, 1), 3.1),
], False)
sketch7.addConstraint([
    Sketcher.Constraint("Equal", 0, 1),
    Sketcher.Constraint("Equal", 1, 2),
    Sketcher.Constraint("Vertical", 0, 3, 1, 3),
    Sketcher.Constraint("Vertical", 1, 3, 2, 3),
    Sketcher.Constraint("Diameter", 0, Q("6.2 mm")),
    Sketcher.Constraint("DistanceY", -1, 1, 0, 3, Q("27 mm")),
    Sketcher.Constraint("DistanceY", -1, 1, 1, 3, Q("18 mm")),
    Sketcher.Constraint("DistanceY", -1, 1, 2, 3, Q("9 mm")),
    Sketcher.Constraint("DistanceX", -1, 1, 0, 3, Q("94.81601 mm")),
])
pocket3 = body.newObject("PartDesign::Pocket", "Pocket002")
pocket3.Profile = sketch7
pocket3.Length = 6

# Sketch on YZ plane
sketch8 = body.newObject("Sketcher::SketchObject", "Sketch007")
sketch8.AttachmentSupport = (doc.getObject("YZ_Plane"), [""])
sketch8.MapMode = "FlatFace"
sketch8.AttachmentOffset = App.Placement(V(0, 0, -29.286621), App.Rotation())
sketch8.addGeometry([
    Part.LineSegment(V(94.8, 21.2, 0), V(97.6, 19.6, 0)),  # 0
    Part.LineSegment(V(97.6, 19.6, 0), V(97.6, 16.4, 0)),  # 1
    Part.LineSegment(V(97.6, 16.4, 0), V(94.8, 14.8, 0)),  # 2
    Part.LineSegment(V(94.8, 14.8, 0), V(92, 16.4, 0)),  # 3
    Part.LineSegment(V(92, 16.4, 0), V(92, 19.6, 0)),  # 4
    Part.LineSegment(V(92, 19.6, 0), V(94.8, 21.2, 0)),  # 5
    Part.LineSegment(V(94.8, 12.2, 0), V(97.6, 10.6, 0)),  # 6
    Part.LineSegment(V(97.6, 10.6, 0), V(97.6, 7.4, 0)),  # 7
    Part.LineSegment(V(97.6, 7.4, 0), V(94.8, 5.8, 0)),  # 8
    Part.LineSegment(V(94.8, 5.8, 0), V(92, 7.4, 0)),  # 9
    Part.LineSegment(V(92, 7.4, 0), V(92, 10.6, 0)),  # 10
    Part.LineSegment(V(92, 10.6, 0), V(94.8, 12.2, 0)),  # 11
    Part.LineSegment(V(94.8, 30.2, 0), V(97.6, 28.6, 0)),  # 12
    Part.LineSegment(V(97.6, 28.6, 0), V(97.6, 25.4, 0)),  # 13
    Part.LineSegment(V(97.6, 25.4, 0), V(94.8, 23.8, 0)),  # 14
    Part.LineSegment(V(94.8, 23.8, 0), V(92, 25.4, 0)),  # 15
    Part.LineSegment(V(92, 25.4, 0), V(92, 28.6, 0)),  # 16
    Part.LineSegment(V(92, 28.6, 0), V(94.8, 30.2, 0)),  # 17
], False)
sketch8.addConstraint([
    Sketcher.Constraint("Coincident", 0, 2, 1, 1),
    Sketcher.Constraint("Coincident", 1, 2, 2, 1),
    Sketcher.Constraint("Coincident", 2, 2, 3, 1),
    Sketcher.Constraint("Coincident", 3, 2, 4, 1),
    Sketcher.Constraint("Coincident", 4, 2, 5, 1),
    Sketcher.Constraint("Coincident", 5, 2, 0, 1),
    Sketcher.Constraint("Coincident", 6, 2, 7, 1),
    Sketcher.Constraint("Coincident", 7, 2, 8, 1),
    Sketcher.Constraint("Coincident", 8, 2, 9, 1),
    Sketcher.Constraint("Coincident", 9, 2, 10, 1),
    Sketcher.Constraint("Coincident", 10, 2, 11, 1),
    Sketcher.Constraint("Coincident", 11, 2, 6, 1),
    Sketcher.Constraint("Coincident", 12, 2, 13, 1),
    Sketcher.Constraint("Coincident", 13, 2, 14, 1),
    Sketcher.Constraint("Coincident", 14, 2, 15, 1),
    Sketcher.Constraint("Coincident", 15, 2, 16, 1),
    Sketcher.Constraint("Coincident", 16, 2, 17, 1),
    Sketcher.Constraint("Coincident", 17, 2, 12, 1),
    Sketcher.Constraint("Vertical", 1),
    Sketcher.Constraint("Vertical", 4),
    Sketcher.Constraint("Vertical", 7),
    Sketcher.Constraint("Vertical", 10),
    Sketcher.Constraint("Vertical", 13),
    Sketcher.Constraint("Vertical", 16),
    Sketcher.Constraint("Parallel", 0, 3),
    Sketcher.Constraint("Parallel", 2, 5),
    Sketcher.Constraint("Parallel", 3, 6),
    Sketcher.Constraint("Parallel", 5, 8),
    Sketcher.Constraint("Parallel", 6, 9),
    Sketcher.Constraint("Parallel", 8, 11),
    Sketcher.Constraint("Parallel", 9, 12),
    Sketcher.Constraint("Parallel", 11, 14),
    Sketcher.Constraint("Parallel", 12, 15),
    Sketcher.Constraint("Parallel", 14, 17),
    Sketcher.Constraint("Horizontal", 1, 2, 3, 2),
    Sketcher.Constraint("Horizontal", 0, 2, 4, 2),
    Sketcher.Constraint("Horizontal", 7, 2, 9, 2),
    Sketcher.Constraint("Horizontal", 6, 2, 10, 2),
    Sketcher.Constraint("Horizontal", 13, 2, 15, 2),
    Sketcher.Constraint("Horizontal", 12, 2, 16, 2),
    Sketcher.Constraint("Vertical", 2, 2, 5, 2),
    Sketcher.Constraint("Vertical", 1, 2, 6, 2),
    Sketcher.Constraint("Vertical", 5, 2, 8, 2),
    Sketcher.Constraint("Vertical", 7, 2, 12, 2),
    Sketcher.Constraint("Vertical", 11, 2, 14, 2),
    Sketcher.Constraint("Equal", 4, 7),
    Sketcher.Constraint("Equal", 10, 13),
    Sketcher.Constraint("Angle", 0, Q("-30 deg")),
    Sketcher.Constraint("DistanceY", 6, 2, 0, 2, Q("9 mm")),
    Sketcher.Constraint("DistanceY", 0, 2, 12, 2, Q("9 mm")),
    Sketcher.Constraint("DistanceX", 2, 2, 1, 2, Q("2.8 mm")),
    Sketcher.Constraint("DistanceY", 1, 2, 1, 1, Q("3.233162 mm")),
    Sketcher.Constraint("DistanceX", -1, 1, 0, 2, Q("97.61601 mm")),
    Sketcher.Constraint("DistanceY", -1, 1, 0, 2, Q("19.616581 mm")),
])
pocket4 = body.newObject("PartDesign::Pocket", "Pocket003")
pocket4.Profile = sketch8
pocket4.Length = 6
pocket4.Reversed = True

doc.recompute()
